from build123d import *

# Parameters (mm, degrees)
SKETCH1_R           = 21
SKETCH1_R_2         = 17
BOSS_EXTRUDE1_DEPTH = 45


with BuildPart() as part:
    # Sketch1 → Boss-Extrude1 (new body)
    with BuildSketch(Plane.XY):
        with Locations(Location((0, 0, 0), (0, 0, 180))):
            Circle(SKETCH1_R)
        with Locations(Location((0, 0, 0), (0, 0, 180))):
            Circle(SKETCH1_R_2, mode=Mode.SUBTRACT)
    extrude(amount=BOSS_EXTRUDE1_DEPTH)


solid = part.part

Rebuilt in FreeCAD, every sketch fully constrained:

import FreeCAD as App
import Part
import Sketcher

V = App.Vector

doc = App.newDocument("Part")
params = doc.addObject("Spreadsheet::Sheet", "Params")
for row, (alias, value) in enumerate([
    ("sketch1_diameter", "42 mm"),
    ("sketch1_diameter2", "34 mm"),
    ("pad1_length", "45 mm"),
], start=1):
    params.set(f"A{row}", alias)
    params.set(f"B{row}", "=" + value)
    params.setAlias(f"B{row}", alias)

body = doc.addObject("PartDesign::Body", "Body")

sketch1 = body.newObject("Sketcher::SketchObject", "Sketch")
sketch1.AttachmentSupport = (doc.getObject("XY_Plane"), [""])
sketch1.MapMode = "FlatFace"
sketch1.addGeometry(Part.Circle(V(0, 0, 0), V(0, 0, 1), 21), False)
sketch1.addGeometry(Part.Circle(V(0, 0, 0), V(0, 0, 1), 17), False)
sketch1.addConstraint(Sketcher.Constraint("Coincident", 0, 3, -1, 1))
sketch1.addConstraint(Sketcher.Constraint("Coincident", 1, 3, -1, 1))
sketch1.addConstraint(Sketcher.Constraint("Diameter", 0, 42.0))
sketch1.addConstraint(Sketcher.Constraint("Diameter", 1, 34.0))
sketch1.setExpression("Constraints[2]", "Params.sketch1_diameter")
sketch1.setExpression("Constraints[3]", "Params.sketch1_diameter2")
pad1 = body.newObject("PartDesign::Pad", "Pad")
pad1.Profile = sketch1
pad1.setExpression("Length", "Params.pad1_length")

doc.recompute()
